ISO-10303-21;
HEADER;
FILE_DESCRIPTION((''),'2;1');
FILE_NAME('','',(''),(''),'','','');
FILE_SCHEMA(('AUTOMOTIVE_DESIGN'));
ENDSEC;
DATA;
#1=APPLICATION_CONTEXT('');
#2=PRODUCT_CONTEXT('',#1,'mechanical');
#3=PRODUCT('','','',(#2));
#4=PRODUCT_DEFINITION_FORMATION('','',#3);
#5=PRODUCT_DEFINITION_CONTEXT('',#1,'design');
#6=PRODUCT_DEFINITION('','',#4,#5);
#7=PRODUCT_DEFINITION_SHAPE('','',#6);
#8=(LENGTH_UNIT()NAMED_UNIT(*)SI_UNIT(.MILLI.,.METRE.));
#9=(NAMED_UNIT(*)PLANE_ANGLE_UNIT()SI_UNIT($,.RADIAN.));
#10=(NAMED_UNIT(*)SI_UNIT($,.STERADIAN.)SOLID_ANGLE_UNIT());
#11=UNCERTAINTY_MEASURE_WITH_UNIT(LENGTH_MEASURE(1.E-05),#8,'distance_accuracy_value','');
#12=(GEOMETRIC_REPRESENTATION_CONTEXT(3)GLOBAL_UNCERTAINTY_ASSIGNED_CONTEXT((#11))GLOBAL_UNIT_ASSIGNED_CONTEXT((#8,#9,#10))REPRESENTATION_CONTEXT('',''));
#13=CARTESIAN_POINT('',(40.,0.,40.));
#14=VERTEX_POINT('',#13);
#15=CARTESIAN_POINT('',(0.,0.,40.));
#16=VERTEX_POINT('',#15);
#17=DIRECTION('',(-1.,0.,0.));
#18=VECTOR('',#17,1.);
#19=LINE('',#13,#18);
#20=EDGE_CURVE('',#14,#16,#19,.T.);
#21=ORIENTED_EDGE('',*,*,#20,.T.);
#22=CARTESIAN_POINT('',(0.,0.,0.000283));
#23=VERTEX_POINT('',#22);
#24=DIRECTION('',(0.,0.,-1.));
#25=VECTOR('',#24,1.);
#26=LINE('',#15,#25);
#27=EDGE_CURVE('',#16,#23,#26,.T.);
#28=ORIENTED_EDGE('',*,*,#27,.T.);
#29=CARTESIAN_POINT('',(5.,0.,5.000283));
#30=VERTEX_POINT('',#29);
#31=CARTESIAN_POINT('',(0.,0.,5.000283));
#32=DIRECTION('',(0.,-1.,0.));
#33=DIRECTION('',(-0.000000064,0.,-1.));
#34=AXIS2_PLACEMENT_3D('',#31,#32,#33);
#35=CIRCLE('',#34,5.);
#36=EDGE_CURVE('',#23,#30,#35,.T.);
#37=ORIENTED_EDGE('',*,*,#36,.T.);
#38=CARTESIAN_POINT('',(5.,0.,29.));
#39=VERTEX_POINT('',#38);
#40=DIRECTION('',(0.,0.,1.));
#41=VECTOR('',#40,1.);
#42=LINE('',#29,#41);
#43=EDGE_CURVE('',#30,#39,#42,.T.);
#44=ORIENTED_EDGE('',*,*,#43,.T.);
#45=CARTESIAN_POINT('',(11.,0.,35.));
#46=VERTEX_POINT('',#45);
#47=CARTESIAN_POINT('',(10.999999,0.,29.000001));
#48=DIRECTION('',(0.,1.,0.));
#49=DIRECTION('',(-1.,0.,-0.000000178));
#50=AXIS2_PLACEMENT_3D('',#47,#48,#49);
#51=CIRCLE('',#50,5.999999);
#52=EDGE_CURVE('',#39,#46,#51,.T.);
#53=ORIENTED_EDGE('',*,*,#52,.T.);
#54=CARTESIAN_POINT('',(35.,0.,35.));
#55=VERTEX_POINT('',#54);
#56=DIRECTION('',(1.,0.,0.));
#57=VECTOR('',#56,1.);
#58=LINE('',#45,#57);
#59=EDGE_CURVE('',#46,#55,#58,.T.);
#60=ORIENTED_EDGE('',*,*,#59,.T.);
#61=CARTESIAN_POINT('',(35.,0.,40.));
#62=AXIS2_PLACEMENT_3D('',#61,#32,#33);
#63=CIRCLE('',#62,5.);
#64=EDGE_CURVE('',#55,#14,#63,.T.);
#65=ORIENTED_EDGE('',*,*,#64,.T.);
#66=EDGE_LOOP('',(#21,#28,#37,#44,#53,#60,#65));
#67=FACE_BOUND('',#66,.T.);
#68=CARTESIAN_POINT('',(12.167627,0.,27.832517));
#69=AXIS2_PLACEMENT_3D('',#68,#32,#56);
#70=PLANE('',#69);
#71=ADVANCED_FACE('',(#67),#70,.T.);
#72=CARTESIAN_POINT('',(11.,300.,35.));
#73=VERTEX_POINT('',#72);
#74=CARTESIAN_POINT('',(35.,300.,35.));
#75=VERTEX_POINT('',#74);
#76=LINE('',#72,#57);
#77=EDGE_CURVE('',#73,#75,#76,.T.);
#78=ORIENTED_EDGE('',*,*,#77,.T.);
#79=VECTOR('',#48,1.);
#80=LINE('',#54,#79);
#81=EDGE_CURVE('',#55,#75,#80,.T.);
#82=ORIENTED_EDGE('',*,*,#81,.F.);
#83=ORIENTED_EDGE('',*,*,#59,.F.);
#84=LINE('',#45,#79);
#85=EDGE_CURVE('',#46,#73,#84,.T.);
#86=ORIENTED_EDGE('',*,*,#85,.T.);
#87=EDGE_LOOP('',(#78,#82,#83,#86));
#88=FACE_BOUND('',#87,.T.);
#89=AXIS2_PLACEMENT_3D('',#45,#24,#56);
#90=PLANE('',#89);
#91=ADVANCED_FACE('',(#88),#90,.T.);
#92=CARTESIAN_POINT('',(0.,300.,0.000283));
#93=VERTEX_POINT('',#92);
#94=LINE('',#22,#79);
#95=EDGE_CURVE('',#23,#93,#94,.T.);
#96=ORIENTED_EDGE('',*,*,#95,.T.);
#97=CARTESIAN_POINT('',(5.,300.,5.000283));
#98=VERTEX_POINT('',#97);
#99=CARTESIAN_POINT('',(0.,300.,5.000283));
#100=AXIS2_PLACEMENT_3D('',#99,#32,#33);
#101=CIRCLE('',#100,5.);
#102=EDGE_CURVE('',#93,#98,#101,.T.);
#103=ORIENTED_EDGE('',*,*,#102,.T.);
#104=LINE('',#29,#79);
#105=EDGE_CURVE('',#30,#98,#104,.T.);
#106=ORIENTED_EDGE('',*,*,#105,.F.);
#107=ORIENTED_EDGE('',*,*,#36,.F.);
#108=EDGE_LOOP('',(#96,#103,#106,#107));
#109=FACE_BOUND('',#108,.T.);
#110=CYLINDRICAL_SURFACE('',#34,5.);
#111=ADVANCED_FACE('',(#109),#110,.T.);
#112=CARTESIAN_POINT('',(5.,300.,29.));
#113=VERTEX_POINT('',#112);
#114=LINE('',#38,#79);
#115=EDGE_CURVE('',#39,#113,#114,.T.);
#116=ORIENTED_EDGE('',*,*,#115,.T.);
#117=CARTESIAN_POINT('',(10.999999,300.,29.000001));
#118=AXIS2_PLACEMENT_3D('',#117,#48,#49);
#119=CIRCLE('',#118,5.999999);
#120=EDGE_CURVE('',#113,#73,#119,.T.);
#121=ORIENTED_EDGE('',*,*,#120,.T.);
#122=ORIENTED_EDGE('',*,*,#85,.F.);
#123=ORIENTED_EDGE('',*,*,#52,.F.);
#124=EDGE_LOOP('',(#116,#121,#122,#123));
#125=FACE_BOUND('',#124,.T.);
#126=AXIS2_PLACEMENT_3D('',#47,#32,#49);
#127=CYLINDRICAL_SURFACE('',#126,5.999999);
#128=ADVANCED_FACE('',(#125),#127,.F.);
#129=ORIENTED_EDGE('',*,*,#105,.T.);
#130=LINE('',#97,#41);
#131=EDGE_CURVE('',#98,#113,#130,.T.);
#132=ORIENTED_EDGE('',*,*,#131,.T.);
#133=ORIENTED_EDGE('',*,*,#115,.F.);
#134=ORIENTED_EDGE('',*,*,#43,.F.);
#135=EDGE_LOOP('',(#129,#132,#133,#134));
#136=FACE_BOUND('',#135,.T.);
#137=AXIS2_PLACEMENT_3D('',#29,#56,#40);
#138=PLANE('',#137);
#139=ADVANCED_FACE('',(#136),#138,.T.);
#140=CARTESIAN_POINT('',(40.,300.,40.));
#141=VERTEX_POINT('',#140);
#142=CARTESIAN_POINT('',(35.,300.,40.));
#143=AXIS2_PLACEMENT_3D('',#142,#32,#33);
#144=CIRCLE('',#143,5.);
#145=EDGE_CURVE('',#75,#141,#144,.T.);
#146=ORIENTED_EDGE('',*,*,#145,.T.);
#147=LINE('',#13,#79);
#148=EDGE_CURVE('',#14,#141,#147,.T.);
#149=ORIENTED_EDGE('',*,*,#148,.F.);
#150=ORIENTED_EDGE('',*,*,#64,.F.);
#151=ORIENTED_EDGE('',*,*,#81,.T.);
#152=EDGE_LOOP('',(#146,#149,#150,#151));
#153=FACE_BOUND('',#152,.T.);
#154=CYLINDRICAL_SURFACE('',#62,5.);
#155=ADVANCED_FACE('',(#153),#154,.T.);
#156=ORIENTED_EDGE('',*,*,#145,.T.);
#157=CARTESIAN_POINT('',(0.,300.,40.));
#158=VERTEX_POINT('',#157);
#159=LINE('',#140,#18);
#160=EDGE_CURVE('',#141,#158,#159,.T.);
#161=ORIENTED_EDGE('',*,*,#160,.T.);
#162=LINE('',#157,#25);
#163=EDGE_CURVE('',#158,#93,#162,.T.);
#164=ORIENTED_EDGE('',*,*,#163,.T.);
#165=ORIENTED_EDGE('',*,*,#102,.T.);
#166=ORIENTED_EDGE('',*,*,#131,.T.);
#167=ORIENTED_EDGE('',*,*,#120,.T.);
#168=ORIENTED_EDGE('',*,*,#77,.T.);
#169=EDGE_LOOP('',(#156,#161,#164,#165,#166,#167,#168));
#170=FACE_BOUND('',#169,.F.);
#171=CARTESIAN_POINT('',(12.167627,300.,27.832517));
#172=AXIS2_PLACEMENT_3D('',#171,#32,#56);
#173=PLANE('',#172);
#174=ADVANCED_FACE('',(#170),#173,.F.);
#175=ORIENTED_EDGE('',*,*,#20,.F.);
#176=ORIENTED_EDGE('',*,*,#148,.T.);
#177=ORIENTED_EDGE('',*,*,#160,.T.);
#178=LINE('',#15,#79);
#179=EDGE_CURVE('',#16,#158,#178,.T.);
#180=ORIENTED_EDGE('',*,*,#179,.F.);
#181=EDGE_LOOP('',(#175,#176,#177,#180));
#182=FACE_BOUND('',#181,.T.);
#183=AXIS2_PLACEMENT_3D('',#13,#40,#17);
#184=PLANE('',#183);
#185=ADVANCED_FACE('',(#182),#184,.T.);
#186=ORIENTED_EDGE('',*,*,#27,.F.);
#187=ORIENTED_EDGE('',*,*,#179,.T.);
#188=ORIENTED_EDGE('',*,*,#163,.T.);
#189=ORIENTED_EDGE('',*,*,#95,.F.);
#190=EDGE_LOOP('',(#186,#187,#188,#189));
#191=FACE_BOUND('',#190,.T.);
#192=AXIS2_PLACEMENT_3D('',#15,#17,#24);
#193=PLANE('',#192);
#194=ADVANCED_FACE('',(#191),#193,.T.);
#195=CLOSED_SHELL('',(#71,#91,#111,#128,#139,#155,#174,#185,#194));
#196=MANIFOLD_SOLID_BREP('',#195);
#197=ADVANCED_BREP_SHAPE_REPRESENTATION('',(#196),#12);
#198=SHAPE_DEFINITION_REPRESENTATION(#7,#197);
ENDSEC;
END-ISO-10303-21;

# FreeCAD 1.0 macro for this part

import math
import FreeCAD as App
import Part
import Sketcher

doc = App.newDocument("Part")
params = doc.addObject("Spreadsheet::Sheet", "Params")
for row, (alias, value) in enumerate([
    ("sketch1_radius", "5 mm"),
    ("sketch1_radius2", "5.999999 mm"),
    ("sketch1_width", "24 mm"),
    ("pad1_length", "300 mm"),
], start=1):
    params.set(f"A{row}", alias)
    params.set(f"B{row}", "=" + value)
    params.setAlias(f"B{row}", alias)

body = doc.addObject("PartDesign::Body", "Body")

# Sketch on XZ plane
sketch1 = doc.addObject("Sketcher::SketchObject", "Sketch")
body.addObject(sketch1)
sketch1.AttachmentSupport = (doc.XZ_Plane, [""])
sketch1.MapMode = "FlatFace"
sketch1.addGeometry([
    Part.LineSegment(App.Vector(0, 40, 0), App.Vector(0, 0, 0)),  # 0
    Part.ArcOfCircle(Part.Circle(App.Vector(0, 5, 0), App.Vector(0, 0, 1), 5), math.radians(-90), math.radians(0)),  # 1
    Part.LineSegment(App.Vector(5, 5, 0), App.Vector(5, 29, 0)),  # 2
    Part.ArcOfCircle(Part.Circle(App.Vector(11, 29, 0), App.Vector(0, 0, 1), 6), math.radians(90), math.radians(180)),  # 3
    Part.LineSegment(App.Vector(11, 35, 0), App.Vector(35, 35, 0)),  # 4
    Part.ArcOfCircle(Part.Circle(App.Vector(35, 40, 0), App.Vector(0, 0, 1), 5), math.radians(-90), math.radians(0)),  # 5
    Part.LineSegment(App.Vector(40, 40, 0), App.Vector(0, 40, 0)),  # 6
], False)
sketch1.addConstraint([
    Sketcher.Constraint("Coincident", 0, 2, 1, 1),
    Sketcher.Constraint("Tangent", 1, 2, 2, 1),
    Sketcher.Constraint("Tangent", 2, 2, 3, 2),
    Sketcher.Constraint("Tangent", 3, 1, 4, 1),
    Sketcher.Constraint("Tangent", 4, 2, 5, 1),
    Sketcher.Constraint("Coincident", 5, 2, 6, 1),
    Sketcher.Constraint("Coincident", 6, 2, 0, 1),
    Sketcher.Constraint("Vertical", 0),
    Sketcher.Constraint("Vertical", 2),
    Sketcher.Constraint("Horizontal", 4),
    Sketcher.Constraint("Horizontal", 6),
    Sketcher.Constraint("Equal", 1, 5),
    Sketcher.Constraint("PointOnObject", 1, 3, -2),
    Sketcher.Constraint("PointOnObject", 0, 2, -2),
    Sketcher.Constraint("Radius", 1, 5.0),
    Sketcher.Constraint("Radius", 3, 5.999999),
    Sketcher.Constraint("DistanceX", 4, 1, 4, 2, 24.0),
    Sketcher.Constraint("DistanceY", -1, 1, 3, 3, 29.000001),
    Sketcher.Constraint("DistanceY", -1, 1, 5, 2, 40.0),
    Sketcher.Constraint("DistanceY", 0, 2, 0, 1, 39.999717),
])
sketch1.setExpression("Constraints[14]", "Params.sketch1_radius")
sketch1.setExpression("Constraints[15]", "Params.sketch1_radius2")
sketch1.setExpression("Constraints[16]", "Params.sketch1_width")
pad1 = doc.addObject("PartDesign::Pad", "Pad")
body.addObject(pad1)
pad1.Profile = sketch1
pad1.setExpression("Length", "Params.pad1_length")
pad1.Reversed = True

doc.recompute()
